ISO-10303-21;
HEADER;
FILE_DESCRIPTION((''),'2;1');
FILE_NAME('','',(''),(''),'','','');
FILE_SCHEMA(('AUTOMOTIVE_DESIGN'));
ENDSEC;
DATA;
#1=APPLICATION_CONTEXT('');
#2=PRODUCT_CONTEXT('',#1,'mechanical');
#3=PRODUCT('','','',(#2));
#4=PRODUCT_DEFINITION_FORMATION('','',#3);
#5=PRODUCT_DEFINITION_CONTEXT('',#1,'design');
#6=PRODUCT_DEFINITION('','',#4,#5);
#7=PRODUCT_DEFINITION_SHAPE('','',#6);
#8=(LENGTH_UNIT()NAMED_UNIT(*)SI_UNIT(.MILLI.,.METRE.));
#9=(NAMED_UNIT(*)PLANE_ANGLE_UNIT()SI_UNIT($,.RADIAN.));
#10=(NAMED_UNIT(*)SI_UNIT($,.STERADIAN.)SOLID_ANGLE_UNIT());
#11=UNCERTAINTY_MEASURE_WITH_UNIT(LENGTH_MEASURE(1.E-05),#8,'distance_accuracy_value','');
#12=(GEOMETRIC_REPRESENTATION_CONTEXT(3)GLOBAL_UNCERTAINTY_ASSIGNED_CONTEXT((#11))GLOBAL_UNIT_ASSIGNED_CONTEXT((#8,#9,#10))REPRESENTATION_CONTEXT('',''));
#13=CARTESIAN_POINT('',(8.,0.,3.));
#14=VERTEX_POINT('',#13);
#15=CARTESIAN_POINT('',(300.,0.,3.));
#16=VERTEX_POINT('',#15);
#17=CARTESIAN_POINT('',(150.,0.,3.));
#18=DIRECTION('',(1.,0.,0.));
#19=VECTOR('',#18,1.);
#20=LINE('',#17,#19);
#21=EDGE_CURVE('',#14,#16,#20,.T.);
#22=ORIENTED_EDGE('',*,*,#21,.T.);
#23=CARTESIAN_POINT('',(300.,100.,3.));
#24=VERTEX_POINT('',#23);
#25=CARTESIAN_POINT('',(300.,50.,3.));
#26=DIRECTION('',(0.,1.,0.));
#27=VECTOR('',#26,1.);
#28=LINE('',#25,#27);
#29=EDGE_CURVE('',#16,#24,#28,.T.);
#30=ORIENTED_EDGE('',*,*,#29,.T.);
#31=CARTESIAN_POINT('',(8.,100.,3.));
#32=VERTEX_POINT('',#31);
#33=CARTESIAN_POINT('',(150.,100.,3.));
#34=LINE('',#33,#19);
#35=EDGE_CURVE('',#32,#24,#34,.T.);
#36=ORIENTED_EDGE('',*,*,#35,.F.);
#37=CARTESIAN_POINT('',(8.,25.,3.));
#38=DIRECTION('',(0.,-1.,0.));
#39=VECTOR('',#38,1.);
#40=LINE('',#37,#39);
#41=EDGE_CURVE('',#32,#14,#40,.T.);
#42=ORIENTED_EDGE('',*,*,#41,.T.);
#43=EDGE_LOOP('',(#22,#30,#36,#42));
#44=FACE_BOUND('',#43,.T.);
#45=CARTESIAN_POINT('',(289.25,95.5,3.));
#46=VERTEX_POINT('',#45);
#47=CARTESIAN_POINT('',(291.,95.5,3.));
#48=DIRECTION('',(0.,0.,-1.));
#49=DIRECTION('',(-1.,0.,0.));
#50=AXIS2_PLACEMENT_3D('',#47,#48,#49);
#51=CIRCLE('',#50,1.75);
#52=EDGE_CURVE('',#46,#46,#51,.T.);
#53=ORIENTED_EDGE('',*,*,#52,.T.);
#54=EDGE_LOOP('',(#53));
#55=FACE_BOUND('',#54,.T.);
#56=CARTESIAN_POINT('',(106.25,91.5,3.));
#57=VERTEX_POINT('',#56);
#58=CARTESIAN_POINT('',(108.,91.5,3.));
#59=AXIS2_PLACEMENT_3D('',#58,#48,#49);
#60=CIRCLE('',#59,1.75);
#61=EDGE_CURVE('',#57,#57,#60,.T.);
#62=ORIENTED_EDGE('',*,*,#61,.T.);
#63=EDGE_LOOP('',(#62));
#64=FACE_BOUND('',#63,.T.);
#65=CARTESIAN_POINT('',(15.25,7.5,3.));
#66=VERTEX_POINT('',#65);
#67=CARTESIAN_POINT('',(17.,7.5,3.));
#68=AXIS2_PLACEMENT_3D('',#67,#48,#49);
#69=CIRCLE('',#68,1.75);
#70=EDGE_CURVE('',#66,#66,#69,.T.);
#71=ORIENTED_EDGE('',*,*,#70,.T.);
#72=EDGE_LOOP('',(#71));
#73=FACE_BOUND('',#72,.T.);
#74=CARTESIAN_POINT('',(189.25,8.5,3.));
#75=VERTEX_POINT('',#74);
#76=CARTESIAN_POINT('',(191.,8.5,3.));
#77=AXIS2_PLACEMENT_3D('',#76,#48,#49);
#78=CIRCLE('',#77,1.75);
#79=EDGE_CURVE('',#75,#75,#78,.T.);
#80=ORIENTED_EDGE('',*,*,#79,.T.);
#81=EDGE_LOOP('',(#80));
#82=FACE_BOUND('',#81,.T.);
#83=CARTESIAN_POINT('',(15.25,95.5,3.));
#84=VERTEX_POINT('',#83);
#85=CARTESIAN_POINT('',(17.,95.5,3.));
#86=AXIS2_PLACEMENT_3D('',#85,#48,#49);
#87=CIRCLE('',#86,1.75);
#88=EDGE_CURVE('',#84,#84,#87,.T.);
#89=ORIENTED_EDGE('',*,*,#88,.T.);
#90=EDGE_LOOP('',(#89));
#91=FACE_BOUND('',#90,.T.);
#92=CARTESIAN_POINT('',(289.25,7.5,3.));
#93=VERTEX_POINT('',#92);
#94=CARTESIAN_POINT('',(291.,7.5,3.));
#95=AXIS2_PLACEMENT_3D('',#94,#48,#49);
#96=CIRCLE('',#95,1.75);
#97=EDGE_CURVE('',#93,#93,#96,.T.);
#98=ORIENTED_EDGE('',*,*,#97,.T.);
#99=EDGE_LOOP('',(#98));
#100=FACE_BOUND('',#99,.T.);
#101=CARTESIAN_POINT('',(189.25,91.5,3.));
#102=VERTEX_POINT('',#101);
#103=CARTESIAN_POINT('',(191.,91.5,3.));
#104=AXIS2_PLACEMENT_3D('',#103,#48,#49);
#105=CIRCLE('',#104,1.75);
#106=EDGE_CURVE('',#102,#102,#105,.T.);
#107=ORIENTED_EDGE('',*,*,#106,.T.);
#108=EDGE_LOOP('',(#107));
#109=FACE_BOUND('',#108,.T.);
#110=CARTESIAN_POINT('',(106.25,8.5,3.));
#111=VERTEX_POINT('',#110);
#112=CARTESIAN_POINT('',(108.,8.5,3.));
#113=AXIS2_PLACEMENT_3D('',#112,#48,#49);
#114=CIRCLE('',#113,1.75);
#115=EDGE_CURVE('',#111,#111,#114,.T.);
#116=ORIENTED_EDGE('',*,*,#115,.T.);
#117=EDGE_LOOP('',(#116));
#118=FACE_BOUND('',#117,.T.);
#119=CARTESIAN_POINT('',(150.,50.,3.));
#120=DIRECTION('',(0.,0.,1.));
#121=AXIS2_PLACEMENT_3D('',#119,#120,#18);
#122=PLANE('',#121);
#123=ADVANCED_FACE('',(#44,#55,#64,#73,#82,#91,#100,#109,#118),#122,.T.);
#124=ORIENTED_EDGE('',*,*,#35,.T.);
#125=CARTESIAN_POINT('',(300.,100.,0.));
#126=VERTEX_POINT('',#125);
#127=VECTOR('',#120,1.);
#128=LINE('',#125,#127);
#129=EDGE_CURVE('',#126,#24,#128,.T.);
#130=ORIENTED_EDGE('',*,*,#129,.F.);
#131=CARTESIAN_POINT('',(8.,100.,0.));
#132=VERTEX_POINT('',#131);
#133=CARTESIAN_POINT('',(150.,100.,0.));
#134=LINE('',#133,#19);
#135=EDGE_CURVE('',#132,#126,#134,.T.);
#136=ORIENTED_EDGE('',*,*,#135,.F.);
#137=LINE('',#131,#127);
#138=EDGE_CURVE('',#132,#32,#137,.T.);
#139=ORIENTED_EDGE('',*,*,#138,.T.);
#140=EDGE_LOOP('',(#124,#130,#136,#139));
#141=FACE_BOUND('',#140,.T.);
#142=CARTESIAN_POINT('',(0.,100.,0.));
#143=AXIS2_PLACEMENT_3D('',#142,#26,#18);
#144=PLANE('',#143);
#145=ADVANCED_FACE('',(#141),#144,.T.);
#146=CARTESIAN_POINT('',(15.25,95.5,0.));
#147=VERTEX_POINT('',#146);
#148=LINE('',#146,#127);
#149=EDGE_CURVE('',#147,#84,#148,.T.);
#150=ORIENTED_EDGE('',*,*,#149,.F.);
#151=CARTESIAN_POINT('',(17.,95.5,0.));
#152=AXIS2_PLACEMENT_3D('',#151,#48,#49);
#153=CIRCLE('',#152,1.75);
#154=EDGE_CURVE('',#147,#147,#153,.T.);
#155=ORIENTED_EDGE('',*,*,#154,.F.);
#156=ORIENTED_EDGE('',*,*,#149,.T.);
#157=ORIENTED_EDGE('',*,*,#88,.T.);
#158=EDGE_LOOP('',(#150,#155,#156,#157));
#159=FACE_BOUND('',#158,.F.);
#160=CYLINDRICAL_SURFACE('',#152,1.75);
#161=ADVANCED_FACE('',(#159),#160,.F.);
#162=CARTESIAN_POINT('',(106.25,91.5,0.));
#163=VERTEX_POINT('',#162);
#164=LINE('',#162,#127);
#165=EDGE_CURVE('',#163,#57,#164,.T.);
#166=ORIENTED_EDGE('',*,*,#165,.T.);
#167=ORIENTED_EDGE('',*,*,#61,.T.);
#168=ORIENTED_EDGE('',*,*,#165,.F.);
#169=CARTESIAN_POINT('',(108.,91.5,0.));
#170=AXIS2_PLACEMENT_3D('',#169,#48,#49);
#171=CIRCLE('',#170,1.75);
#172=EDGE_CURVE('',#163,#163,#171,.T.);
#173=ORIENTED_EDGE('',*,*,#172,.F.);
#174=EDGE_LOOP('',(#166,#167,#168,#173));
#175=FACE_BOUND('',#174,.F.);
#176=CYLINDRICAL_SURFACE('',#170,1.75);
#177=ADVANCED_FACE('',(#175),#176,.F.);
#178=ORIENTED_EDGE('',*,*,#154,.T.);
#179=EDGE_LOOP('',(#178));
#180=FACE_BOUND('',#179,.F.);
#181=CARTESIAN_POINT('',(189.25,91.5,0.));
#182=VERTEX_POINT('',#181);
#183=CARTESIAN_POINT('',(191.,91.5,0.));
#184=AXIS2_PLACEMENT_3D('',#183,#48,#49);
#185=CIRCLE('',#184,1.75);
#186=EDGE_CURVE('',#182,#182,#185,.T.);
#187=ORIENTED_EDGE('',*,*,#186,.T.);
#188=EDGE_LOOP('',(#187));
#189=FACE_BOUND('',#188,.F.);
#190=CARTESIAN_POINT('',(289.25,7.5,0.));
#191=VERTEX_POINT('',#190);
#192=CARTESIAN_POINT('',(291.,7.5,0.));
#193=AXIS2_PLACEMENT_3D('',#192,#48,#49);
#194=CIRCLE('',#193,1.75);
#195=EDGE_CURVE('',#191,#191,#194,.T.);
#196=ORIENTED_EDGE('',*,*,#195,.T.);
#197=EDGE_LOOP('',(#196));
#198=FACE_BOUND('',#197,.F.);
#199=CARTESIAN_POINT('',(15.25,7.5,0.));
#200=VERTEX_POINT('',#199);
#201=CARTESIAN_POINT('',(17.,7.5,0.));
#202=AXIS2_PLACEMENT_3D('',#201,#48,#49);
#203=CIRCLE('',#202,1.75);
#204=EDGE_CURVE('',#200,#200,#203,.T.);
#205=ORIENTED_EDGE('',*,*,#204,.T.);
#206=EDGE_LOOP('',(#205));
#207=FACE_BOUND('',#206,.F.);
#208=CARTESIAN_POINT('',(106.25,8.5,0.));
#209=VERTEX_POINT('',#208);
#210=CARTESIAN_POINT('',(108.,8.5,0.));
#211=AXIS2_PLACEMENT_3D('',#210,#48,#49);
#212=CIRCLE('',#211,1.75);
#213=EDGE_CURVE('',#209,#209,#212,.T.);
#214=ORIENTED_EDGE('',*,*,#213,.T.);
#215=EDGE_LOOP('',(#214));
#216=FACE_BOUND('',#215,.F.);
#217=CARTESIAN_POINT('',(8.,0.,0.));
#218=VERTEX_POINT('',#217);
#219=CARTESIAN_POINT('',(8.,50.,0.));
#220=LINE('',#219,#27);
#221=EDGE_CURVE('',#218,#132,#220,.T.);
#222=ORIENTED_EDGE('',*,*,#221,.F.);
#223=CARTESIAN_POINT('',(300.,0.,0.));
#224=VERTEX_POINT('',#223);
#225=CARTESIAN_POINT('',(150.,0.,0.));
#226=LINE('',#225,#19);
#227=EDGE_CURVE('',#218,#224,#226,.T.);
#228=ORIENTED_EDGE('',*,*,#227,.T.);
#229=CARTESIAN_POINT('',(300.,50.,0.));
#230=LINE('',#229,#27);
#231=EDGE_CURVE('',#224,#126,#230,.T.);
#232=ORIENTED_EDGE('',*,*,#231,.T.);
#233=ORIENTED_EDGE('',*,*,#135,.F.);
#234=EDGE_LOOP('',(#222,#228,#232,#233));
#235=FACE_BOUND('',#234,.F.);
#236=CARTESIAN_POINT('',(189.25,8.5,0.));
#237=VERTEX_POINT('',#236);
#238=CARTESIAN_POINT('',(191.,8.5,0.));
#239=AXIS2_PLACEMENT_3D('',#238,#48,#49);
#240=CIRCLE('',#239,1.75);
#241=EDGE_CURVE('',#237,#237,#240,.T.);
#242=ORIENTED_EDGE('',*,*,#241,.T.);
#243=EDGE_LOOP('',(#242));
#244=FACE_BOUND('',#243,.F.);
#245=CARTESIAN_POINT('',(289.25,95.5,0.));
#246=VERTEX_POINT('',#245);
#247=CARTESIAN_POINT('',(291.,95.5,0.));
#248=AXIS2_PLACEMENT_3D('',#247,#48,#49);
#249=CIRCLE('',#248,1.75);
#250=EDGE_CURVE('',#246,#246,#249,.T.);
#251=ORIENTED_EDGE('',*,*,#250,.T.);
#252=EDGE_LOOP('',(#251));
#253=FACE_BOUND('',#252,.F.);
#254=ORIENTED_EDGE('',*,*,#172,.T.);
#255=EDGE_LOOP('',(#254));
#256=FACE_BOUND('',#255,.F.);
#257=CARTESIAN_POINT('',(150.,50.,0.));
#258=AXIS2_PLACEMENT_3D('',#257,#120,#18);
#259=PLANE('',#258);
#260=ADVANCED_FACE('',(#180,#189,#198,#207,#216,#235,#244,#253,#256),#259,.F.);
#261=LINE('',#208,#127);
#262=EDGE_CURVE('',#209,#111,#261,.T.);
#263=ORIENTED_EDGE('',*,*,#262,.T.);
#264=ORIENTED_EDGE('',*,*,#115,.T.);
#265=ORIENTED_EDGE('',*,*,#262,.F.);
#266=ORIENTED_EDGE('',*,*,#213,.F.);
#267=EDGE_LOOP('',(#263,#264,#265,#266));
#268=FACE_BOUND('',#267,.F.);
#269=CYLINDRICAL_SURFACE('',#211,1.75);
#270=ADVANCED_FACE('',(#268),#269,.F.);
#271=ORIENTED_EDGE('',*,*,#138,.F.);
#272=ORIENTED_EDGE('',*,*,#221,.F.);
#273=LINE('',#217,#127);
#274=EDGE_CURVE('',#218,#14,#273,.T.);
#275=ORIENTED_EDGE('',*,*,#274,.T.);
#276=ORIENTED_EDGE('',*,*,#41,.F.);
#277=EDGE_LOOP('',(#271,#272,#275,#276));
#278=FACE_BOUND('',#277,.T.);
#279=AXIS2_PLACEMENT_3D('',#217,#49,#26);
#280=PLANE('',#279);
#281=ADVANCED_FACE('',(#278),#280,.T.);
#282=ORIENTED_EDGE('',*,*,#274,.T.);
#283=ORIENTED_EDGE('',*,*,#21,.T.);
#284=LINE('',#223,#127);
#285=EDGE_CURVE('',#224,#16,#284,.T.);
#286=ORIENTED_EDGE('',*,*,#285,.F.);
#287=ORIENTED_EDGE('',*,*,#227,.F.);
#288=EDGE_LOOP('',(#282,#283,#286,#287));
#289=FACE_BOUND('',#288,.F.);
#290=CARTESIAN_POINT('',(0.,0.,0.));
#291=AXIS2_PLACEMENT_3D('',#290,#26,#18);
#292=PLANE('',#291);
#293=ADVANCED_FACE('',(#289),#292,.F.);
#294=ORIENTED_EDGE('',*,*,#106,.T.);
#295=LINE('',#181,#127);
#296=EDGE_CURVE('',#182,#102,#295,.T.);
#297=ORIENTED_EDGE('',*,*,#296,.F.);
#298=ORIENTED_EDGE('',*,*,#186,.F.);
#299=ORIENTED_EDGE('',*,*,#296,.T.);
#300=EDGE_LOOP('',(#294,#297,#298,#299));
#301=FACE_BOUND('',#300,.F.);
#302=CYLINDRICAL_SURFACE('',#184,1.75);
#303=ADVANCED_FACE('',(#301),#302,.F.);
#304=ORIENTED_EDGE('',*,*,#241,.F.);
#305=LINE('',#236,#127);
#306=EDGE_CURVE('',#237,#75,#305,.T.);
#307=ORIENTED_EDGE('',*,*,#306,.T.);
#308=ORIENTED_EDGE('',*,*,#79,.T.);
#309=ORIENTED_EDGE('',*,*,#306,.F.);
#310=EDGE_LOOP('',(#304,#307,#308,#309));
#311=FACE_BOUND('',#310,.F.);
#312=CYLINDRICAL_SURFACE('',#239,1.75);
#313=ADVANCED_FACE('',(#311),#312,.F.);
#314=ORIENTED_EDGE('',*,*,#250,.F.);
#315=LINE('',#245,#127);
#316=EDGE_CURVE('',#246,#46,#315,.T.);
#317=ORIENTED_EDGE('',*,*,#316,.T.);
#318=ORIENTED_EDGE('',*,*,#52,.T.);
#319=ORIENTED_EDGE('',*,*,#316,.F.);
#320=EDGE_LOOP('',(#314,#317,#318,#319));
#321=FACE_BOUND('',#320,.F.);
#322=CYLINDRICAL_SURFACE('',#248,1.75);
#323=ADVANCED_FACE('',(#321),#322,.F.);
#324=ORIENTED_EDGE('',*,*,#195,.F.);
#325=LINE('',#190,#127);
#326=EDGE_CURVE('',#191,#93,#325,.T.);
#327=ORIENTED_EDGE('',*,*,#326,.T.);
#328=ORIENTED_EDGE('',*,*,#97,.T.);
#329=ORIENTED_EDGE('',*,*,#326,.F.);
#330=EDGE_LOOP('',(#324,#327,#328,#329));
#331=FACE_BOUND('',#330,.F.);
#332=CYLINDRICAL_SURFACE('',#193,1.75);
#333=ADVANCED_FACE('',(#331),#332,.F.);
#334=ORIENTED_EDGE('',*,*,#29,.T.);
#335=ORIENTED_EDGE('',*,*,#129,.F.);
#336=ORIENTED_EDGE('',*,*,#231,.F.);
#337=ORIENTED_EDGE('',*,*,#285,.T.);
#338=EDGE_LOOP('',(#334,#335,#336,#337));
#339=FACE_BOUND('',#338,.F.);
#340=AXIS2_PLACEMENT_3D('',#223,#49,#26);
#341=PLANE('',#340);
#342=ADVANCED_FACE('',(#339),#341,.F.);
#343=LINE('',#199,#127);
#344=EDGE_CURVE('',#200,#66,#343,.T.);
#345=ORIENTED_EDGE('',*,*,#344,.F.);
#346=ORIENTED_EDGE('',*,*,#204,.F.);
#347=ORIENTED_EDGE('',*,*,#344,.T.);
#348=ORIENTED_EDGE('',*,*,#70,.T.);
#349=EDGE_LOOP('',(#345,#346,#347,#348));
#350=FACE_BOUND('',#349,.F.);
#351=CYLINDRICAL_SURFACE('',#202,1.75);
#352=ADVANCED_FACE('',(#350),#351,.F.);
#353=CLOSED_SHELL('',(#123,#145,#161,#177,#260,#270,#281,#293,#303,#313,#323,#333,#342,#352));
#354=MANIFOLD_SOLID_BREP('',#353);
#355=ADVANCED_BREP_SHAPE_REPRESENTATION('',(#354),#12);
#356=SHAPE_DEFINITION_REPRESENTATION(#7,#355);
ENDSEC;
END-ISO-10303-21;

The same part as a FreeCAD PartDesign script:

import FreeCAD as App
import Part
import Sketcher
from FreeCAD import Vector
Q = App.Units.Quantity

doc = App.newDocument("Part")
body = doc.addObject("PartDesign::Body", "Body")

sketch1 = body.newObject("Sketcher::SketchObject", "Sketch")
sketch1.AttachmentSupport = (doc.getObject("XY_Plane"), [""])
sketch1.MapMode = "FlatFace"
sketch1.addGeometry([
    Part.LineSegment(Vector(0, 100, 0), Vector(0, 0, 0)),
    Part.LineSegment(Vector(0, 0, 0), Vector(300, 0, 0)),
    Part.LineSegment(Vector(300, 0, 0), Vector(300, 100, 0)),
    Part.LineSegment(Vector(300, 100, 0), Vector(0, 100, 0)),
], False)
sketch1.addConstraint([
    Sketcher.Constraint("Coincident", 0, 2, 1, 1),
    Sketcher.Constraint("Coincident", 1, 2, 2, 1),
    Sketcher.Constraint("Coincident", 2, 2, 3, 1),
    Sketcher.Constraint("Coincident", 3, 2, 0, 1),
    Sketcher.Constraint("Vertical", 0),
    Sketcher.Constraint("Horizontal", 1),
    Sketcher.Constraint("Vertical", 2),
    Sketcher.Constraint("Horizontal", 3),
    Sketcher.Constraint("Coincident", 0, 2, -1, 1),
    Sketcher.Constraint("DistanceX", 1, 1, 1, 2, Q("300 mm")),
    Sketcher.Constraint("DistanceY", 0, 2, 0, 1, Q("100 mm")),
])
pad1 = body.newObject("PartDesign::Pad", "Pad")
pad1.Profile = sketch1
pad1.Length = 3

sketch2 = body.newObject("Sketcher::SketchObject", "Sketch001")
sketch2.AttachmentSupport = (doc.getObject("XY_Plane"), [""])
sketch2.MapMode = "FlatFace"
sketch2.addGeometry([
    Part.LineSegment(Vector(8, 100, 0), Vector(8, 0, 0)),
    Part.LineSegment(Vector(8, 0, 0), Vector(0, 0, 0)),
    Part.LineSegment(Vector(0, 0, 0), Vector(0, 100, 0)),
    Part.LineSegment(Vector(0, 100, 0), Vector(8, 100, 0)),
], False)
sketch2.addConstraint([
    Sketcher.Constraint("Coincident", 0, 2, 1, 1),
    Sketcher.Constraint("Coincident", 1, 2, 2, 1),
    Sketcher.Constraint("Coincident", 2, 2, 3, 1),
    Sketcher.Constraint("Coincident", 3, 2, 0, 1),
    Sketcher.Constraint("Vertical", 0),
    Sketcher.Constraint("Horizontal", 1),
    Sketcher.Constraint("Vertical", 2),
    Sketcher.Constraint("Horizontal", 3),
    Sketcher.Constraint("Coincident", 1, 2, -1, 1),
    Sketcher.Constraint("DistanceX", 1, 2, 1, 1, Q("8 mm")),
    Sketcher.Constraint("DistanceY", 0, 2, 0, 1, Q("100 mm")),
])
pocket1 = body.newObject("PartDesign::Pocket", "Pocket")
pocket1.Profile = sketch2
pocket1.Length = 10
pocket1.Reversed = True

sketch3 = body.newObject("Sketcher::SketchObject", "Sketch002")
sketch3.AttachmentSupport = (doc.getObject("XY_Plane"), [""])
sketch3.MapMode = "FlatFace"
sketch3.addGeometry([
    Part.Circle(Vector(291, 95.5, 0), Vector(0, 0, 1), 1.75),
    Part.Circle(Vector(17, 95.5, 0), Vector(0, 0, 1), 1.75),
    Part.Circle(Vector(17, 7.5, 0), Vector(0, 0, 1), 1.75),
    Part.Circle(Vector(291, 7.5, 0), Vector(0, 0, 1), 1.75),
], False)
sketch3.addConstraint([
    Sketcher.Constraint("Equal", 0, 1),
    Sketcher.Constraint("Equal", 1, 2),
    Sketcher.Constraint("Equal", 2, 3),
    Sketcher.Constraint("Horizontal", 0, 3, 1, 3),
    Sketcher.Constraint("Horizontal", 2, 3, 3, 3),
    Sketcher.Constraint("Vertical", 1, 3, 2, 3),
    Sketcher.Constraint("Vertical", 0, 3, 3, 3),
    Sketcher.Constraint("Diameter", 0, Q("3.5 mm")),
    Sketcher.Constraint("DistanceX", -1, 1, 0, 3, Q("291 mm")),
    Sketcher.Constraint("DistanceX", -1, 1, 1, 3, Q("17 mm")),
    Sketcher.Constraint("DistanceY", 2, 3, 1, 3, Q("88 mm")),
    Sketcher.Constraint("DistanceY", -1, 1, 0, 3, Q("95.5 mm")),
])
pocket2 = body.newObject("PartDesign::Pocket", "Pocket001")
pocket2.Profile = sketch3
pocket2.Type = "ThroughAll"
pocket2.Reversed = True

sketch4 = body.newObject("Sketcher::SketchObject", "Sketch003")
sketch4.AttachmentSupport = (doc.getObject("XY_Plane"), [""])
sketch4.MapMode = "FlatFace"
sketch4.addGeometry([
    Part.Circle(Vector(108, 91.5, 0), Vector(0, 0, 1), 1.75),
    Part.Circle(Vector(191, 91.5, 0), Vector(0, 0, 1), 1.75),
    Part.Circle(Vector(191, 8.5, 0), Vector(0, 0, 1), 1.75),
    Part.Circle(Vector(108, 8.5, 0), Vector(0, 0, 1), 1.75),
], False)
sketch4.addConstraint([
    Sketcher.Constraint("Equal", 0, 1),
    Sketcher.Constraint("Equal", 1, 2),
    Sketcher.Constraint("Equal", 2, 3),
    Sketcher.Constraint("Horizontal", 0, 3, 1, 3),
    Sketcher.Constraint("Horizontal", 2, 3, 3, 3),
    Sketcher.Constraint("Vertical", 1, 3, 2, 3),
    Sketcher.Constraint("Vertical", 0, 3, 3, 3),
    Sketcher.Constraint("Diameter", 0, Q("3.5 mm")),
    Sketcher.Constraint("DistanceX", -1, 1, 0, 3, Q("108 mm")),
    Sketcher.Constraint("DistanceX", -1, 1, 1, 3, Q("191 mm")),
    Sketcher.Constraint("DistanceY", 2, 3, 1, 3, Q("83 mm")),
    Sketcher.Constraint("DistanceY", -1, 1, 0, 3, Q("91.5 mm")),
])
pocket3 = body.newObject("PartDesign::Pocket", "Pocket002")
pocket3.Profile = sketch4
pocket3.Type = "ThroughAll"
pocket3.Reversed = True

doc.recompute()
